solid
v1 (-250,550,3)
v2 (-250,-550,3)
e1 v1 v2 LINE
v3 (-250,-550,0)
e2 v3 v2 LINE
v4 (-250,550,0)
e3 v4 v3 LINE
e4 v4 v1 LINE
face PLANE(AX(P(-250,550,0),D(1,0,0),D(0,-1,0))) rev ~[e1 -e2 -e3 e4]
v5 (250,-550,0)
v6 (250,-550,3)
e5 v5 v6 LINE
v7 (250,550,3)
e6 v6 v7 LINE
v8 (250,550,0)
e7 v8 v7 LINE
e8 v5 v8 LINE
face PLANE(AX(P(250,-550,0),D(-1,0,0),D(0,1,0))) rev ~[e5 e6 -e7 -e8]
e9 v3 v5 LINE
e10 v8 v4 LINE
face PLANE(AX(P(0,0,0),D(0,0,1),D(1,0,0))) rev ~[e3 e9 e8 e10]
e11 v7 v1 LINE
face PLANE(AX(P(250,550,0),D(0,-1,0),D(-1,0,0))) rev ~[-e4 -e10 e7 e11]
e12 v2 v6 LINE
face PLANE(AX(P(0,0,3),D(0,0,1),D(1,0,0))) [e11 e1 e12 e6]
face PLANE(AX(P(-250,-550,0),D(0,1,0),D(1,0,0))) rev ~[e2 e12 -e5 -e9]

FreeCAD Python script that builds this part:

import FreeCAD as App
import Part
import Sketcher

V = App.Vector


def add_polygon(sketch, points):
    """Adds a closed chain of lines whose ends are joined by coincident constraints."""
    first, n = sketch.GeometryCount, len(points)
    for a, b in zip(points, points[1:] + points[:1]):
        sketch.addGeometry(Part.LineSegment(App.Vector(*a, 0), App.Vector(*b, 0)), False)
    for i in range(n):
        sketch.addConstraint(Sketcher.Constraint("Coincident", first + i, 2, first + (i + 1) % n, 1))

doc = App.newDocument("Part")
body = doc.addObject("PartDesign::Body", "Body")

# Sketch on XY plane
sketch1 = body.newObject("Sketcher::SketchObject", "Sketch")
sketch1.AttachmentSupport = (doc.getObject("XY_Plane"), [""])
sketch1.MapMode = "FlatFace"
add_polygon(sketch1, [(-250, 550), (-250, -550), (250, -550), (250, 550)])  # lines 0-3
sketch1.addConstraint(Sketcher.Constraint("Vertical", 0))
sketch1.addConstraint(Sketcher.Constraint("Horizontal", 1))
sketch1.addConstraint(Sketcher.Constraint("Vertical", 2))
sketch1.addConstraint(Sketcher.Constraint("Horizontal", 3))
sketch1.addConstraint(Sketcher.Constraint("Symmetric", 0, 2, 2, 2, -1, 1))
sketch1.addConstraint(Sketcher.Constraint("DistanceX", 1, 1, 1, 2, 500.0))
sketch1.addConstraint(Sketcher.Constraint("DistanceY", 0, 2, 0, 1, 1100.0))
pad1 = body.newObject("PartDesign::Pad", "Pad")
pad1.Profile = sketch1
pad1.Length = 3

doc.recompute()
